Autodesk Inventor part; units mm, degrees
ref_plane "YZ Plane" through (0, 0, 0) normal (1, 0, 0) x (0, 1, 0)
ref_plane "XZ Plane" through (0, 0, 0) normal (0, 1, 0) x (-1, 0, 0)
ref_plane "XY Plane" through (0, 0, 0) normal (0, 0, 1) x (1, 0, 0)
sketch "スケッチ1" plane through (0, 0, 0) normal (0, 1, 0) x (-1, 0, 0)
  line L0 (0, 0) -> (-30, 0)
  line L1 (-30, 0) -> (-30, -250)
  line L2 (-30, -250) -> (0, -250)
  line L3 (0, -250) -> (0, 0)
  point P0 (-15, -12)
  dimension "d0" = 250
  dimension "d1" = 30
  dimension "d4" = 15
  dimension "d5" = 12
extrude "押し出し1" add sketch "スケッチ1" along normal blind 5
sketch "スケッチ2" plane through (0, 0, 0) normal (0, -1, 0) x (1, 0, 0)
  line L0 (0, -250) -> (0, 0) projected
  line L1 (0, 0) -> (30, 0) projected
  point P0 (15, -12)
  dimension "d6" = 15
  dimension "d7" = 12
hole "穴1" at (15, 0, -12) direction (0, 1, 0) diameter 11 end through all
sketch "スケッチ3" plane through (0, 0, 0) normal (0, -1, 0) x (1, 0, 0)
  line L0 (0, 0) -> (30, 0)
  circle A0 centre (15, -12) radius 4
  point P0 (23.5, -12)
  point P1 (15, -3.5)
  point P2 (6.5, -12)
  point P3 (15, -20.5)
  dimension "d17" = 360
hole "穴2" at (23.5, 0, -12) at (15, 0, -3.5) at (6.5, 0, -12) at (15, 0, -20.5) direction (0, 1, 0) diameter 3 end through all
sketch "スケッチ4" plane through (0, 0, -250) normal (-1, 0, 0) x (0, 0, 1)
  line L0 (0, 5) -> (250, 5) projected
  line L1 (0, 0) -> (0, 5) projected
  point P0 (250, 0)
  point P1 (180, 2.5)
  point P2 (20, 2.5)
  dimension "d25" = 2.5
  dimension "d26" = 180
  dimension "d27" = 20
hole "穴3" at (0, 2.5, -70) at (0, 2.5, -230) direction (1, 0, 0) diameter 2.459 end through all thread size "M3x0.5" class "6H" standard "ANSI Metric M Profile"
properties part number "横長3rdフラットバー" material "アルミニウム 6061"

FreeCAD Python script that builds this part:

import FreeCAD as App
import Part
import Sketcher

V = App.Vector
Q = App.Units.Quantity

doc = App.newDocument("Part")
body = doc.addObject("PartDesign::Body", "Body")

# Sketch on XZ plane
sketch1 = body.newObject("Sketcher::SketchObject", "Sketch")
sketch1.AttachmentSupport = (doc.getObject("XZ_Plane"), [""])
sketch1.MapMode = "FlatFace"
sketch1.addGeometry(Part.LineSegment(V(0, -250, 0), V(0, 0, 0)), False)
sketch1.addGeometry(Part.LineSegment(V(0, 0, 0), V(30, 0, 0)), False)
sketch1.addGeometry(Part.LineSegment(V(30, 0, 0), V(30, -250, 0)), False)
sketch1.addGeometry(Part.LineSegment(V(30, -250, 0), V(0, -250, 0)), False)
sketch1.addConstraint(Sketcher.Constraint("Coincident", 0, 2, 1, 1))
sketch1.addConstraint(Sketcher.Constraint("Coincident", 1, 2, 2, 1))
sketch1.addConstraint(Sketcher.Constraint("Coincident", 2, 2, 3, 1))
sketch1.addConstraint(Sketcher.Constraint("Coincident", 3, 2, 0, 1))
sketch1.addConstraint(Sketcher.Constraint("Vertical", 0))
sketch1.addConstraint(Sketcher.Constraint("Horizontal", 1))
sketch1.addConstraint(Sketcher.Constraint("Vertical", 2))
sketch1.addConstraint(Sketcher.Constraint("Horizontal", 3))
sketch1.addConstraint(Sketcher.Constraint("Coincident", 0, 2, -1, 1))
sketch1.addConstraint(Sketcher.Constraint("DistanceX", 1, 1, 1, 2, Q("30 mm")))
sketch1.addConstraint(Sketcher.Constraint("DistanceY", 0, 1, 0, 2, Q("250 mm")))
pad1 = body.newObject("PartDesign::Pad", "Pad")
pad1.Profile = sketch1
pad1.Length = 5
pad1.Reversed = True

# Sketch on XZ plane
sketch2 = body.newObject("Sketcher::SketchObject", "Sketch001")
sketch2.AttachmentSupport = (doc.getObject("XZ_Plane"), [""])
sketch2.MapMode = "FlatFace"
sketch2.addGeometry(Part.Circle(V(15, -12, 0), V(0, 0, 1), 6), False)
sketch2.addConstraint(Sketcher.Constraint("Diameter", 0, Q("11 mm")))
sketch2.addConstraint(Sketcher.Constraint("DistanceX", -1, 1, 0, 3, Q("15 mm")))
sketch2.addConstraint(Sketcher.Constraint("DistanceY", 0, 3, -1, 1, Q("12 mm")))
doc.recompute()
hole = body.newObject("PartDesign::Hole", "Hole")
hole.Profile = sketch2
hole.ThreadType = "None"
hole.Diameter = 11
hole.DepthType = "ThroughAll"

# Sketch on XZ plane
sketch3 = body.newObject("Sketcher::SketchObject", "Sketch002")
sketch3.AttachmentSupport = (doc.getObject("XZ_Plane"), [""])
sketch3.MapMode = "FlatFace"
sketch3.addGeometry(Part.Circle(V(23.5, -12, 0), V(0, 0, 1), 1.5), False)
sketch3.addGeometry(Part.Circle(V(15, -3.5, 0), V(0, 0, 1), 1.5), False)
sketch3.addGeometry(Part.Circle(V(6.5, -12, 0), V(0, 0, 1), 1.5), False)
sketch3.addGeometry(Part.Circle(V(15, -20.5, 0), V(0, 0, 1), 1.5), False)
sketch3.addConstraint(Sketcher.Constraint("Equal", 0, 1))
sketch3.addConstraint(Sketcher.Constraint("Equal", 1, 2))
sketch3.addConstraint(Sketcher.Constraint("Equal", 2, 3))
sketch3.addConstraint(Sketcher.Constraint("Horizontal", 0, 3, 2, 3))
sketch3.addConstraint(Sketcher.Constraint("Vertical", 1, 3, 3, 3))
sketch3.addConstraint(Sketcher.Constraint("Diameter", 0, Q("3 mm")))
sketch3.addConstraint(Sketcher.Constraint("DistanceY", 0, 3, -1, 1, Q("12 mm")))
sketch3.addConstraint(Sketcher.Constraint("DistanceX", -1, 1, 1, 3, Q("15 mm")))
sketch3.addConstraint(Sketcher.Constraint("DistanceX", 2, 3, 0, 3, Q("17 mm")))
sketch3.addConstraint(Sketcher.Constraint("DistanceY", 3, 3, 1, 3, Q("17 mm")))
sketch3.addConstraint(Sketcher.Constraint("DistanceX", -1, 1, 0, 3, Q("23.5 mm")))
sketch3.addConstraint(Sketcher.Constraint("DistanceY", 1, 3, -1, 1, Q("3.5 mm")))
doc.recompute()
hole2 = body.newObject("PartDesign::Hole", "Hole001")
hole2.Profile = sketch3
hole2.ThreadType = "None"
hole2.Diameter = 3
hole2.DepthType = "ThroughAll"

# Sketch on YZ plane
sketch4 = body.newObject("Sketcher::SketchObject", "Sketch003")
sketch4.AttachmentSupport = (doc.getObject("YZ_Plane"), [""])
sketch4.MapMode = "FlatFace"
sketch4.addGeometry(Part.Circle(V(2.5, -70, 0), V(0, 0, 1), 1.2), False)
sketch4.addGeometry(Part.Circle(V(2.5, -230, 0), V(0, 0, 1), 1.2), False)
sketch4.addConstraint(Sketcher.Constraint("Equal", 0, 1))
sketch4.addConstraint(Sketcher.Constraint("Vertical", 0, 3, 1, 3))
sketch4.addConstraint(Sketcher.Constraint("Diameter", 0, Q("2.459 mm")))
sketch4.addConstraint(Sketcher.Constraint("DistanceY", 0, 3, -1, 1, Q("70 mm")))
sketch4.addConstraint(Sketcher.Constraint("DistanceY", 1, 3, -1, 1, Q("230 mm")))
sketch4.addConstraint(Sketcher.Constraint("DistanceX", -1, 1, 0, 3, Q("2.5 mm")))
doc.recompute()
hole3 = body.newObject("PartDesign::Hole", "Hole002")
hole3.Profile = sketch4
hole3.ThreadType = "None"
hole3.Diameter = 2.459
hole3.DepthType = "ThroughAll"
hole3.Reversed = True

doc.recompute()
